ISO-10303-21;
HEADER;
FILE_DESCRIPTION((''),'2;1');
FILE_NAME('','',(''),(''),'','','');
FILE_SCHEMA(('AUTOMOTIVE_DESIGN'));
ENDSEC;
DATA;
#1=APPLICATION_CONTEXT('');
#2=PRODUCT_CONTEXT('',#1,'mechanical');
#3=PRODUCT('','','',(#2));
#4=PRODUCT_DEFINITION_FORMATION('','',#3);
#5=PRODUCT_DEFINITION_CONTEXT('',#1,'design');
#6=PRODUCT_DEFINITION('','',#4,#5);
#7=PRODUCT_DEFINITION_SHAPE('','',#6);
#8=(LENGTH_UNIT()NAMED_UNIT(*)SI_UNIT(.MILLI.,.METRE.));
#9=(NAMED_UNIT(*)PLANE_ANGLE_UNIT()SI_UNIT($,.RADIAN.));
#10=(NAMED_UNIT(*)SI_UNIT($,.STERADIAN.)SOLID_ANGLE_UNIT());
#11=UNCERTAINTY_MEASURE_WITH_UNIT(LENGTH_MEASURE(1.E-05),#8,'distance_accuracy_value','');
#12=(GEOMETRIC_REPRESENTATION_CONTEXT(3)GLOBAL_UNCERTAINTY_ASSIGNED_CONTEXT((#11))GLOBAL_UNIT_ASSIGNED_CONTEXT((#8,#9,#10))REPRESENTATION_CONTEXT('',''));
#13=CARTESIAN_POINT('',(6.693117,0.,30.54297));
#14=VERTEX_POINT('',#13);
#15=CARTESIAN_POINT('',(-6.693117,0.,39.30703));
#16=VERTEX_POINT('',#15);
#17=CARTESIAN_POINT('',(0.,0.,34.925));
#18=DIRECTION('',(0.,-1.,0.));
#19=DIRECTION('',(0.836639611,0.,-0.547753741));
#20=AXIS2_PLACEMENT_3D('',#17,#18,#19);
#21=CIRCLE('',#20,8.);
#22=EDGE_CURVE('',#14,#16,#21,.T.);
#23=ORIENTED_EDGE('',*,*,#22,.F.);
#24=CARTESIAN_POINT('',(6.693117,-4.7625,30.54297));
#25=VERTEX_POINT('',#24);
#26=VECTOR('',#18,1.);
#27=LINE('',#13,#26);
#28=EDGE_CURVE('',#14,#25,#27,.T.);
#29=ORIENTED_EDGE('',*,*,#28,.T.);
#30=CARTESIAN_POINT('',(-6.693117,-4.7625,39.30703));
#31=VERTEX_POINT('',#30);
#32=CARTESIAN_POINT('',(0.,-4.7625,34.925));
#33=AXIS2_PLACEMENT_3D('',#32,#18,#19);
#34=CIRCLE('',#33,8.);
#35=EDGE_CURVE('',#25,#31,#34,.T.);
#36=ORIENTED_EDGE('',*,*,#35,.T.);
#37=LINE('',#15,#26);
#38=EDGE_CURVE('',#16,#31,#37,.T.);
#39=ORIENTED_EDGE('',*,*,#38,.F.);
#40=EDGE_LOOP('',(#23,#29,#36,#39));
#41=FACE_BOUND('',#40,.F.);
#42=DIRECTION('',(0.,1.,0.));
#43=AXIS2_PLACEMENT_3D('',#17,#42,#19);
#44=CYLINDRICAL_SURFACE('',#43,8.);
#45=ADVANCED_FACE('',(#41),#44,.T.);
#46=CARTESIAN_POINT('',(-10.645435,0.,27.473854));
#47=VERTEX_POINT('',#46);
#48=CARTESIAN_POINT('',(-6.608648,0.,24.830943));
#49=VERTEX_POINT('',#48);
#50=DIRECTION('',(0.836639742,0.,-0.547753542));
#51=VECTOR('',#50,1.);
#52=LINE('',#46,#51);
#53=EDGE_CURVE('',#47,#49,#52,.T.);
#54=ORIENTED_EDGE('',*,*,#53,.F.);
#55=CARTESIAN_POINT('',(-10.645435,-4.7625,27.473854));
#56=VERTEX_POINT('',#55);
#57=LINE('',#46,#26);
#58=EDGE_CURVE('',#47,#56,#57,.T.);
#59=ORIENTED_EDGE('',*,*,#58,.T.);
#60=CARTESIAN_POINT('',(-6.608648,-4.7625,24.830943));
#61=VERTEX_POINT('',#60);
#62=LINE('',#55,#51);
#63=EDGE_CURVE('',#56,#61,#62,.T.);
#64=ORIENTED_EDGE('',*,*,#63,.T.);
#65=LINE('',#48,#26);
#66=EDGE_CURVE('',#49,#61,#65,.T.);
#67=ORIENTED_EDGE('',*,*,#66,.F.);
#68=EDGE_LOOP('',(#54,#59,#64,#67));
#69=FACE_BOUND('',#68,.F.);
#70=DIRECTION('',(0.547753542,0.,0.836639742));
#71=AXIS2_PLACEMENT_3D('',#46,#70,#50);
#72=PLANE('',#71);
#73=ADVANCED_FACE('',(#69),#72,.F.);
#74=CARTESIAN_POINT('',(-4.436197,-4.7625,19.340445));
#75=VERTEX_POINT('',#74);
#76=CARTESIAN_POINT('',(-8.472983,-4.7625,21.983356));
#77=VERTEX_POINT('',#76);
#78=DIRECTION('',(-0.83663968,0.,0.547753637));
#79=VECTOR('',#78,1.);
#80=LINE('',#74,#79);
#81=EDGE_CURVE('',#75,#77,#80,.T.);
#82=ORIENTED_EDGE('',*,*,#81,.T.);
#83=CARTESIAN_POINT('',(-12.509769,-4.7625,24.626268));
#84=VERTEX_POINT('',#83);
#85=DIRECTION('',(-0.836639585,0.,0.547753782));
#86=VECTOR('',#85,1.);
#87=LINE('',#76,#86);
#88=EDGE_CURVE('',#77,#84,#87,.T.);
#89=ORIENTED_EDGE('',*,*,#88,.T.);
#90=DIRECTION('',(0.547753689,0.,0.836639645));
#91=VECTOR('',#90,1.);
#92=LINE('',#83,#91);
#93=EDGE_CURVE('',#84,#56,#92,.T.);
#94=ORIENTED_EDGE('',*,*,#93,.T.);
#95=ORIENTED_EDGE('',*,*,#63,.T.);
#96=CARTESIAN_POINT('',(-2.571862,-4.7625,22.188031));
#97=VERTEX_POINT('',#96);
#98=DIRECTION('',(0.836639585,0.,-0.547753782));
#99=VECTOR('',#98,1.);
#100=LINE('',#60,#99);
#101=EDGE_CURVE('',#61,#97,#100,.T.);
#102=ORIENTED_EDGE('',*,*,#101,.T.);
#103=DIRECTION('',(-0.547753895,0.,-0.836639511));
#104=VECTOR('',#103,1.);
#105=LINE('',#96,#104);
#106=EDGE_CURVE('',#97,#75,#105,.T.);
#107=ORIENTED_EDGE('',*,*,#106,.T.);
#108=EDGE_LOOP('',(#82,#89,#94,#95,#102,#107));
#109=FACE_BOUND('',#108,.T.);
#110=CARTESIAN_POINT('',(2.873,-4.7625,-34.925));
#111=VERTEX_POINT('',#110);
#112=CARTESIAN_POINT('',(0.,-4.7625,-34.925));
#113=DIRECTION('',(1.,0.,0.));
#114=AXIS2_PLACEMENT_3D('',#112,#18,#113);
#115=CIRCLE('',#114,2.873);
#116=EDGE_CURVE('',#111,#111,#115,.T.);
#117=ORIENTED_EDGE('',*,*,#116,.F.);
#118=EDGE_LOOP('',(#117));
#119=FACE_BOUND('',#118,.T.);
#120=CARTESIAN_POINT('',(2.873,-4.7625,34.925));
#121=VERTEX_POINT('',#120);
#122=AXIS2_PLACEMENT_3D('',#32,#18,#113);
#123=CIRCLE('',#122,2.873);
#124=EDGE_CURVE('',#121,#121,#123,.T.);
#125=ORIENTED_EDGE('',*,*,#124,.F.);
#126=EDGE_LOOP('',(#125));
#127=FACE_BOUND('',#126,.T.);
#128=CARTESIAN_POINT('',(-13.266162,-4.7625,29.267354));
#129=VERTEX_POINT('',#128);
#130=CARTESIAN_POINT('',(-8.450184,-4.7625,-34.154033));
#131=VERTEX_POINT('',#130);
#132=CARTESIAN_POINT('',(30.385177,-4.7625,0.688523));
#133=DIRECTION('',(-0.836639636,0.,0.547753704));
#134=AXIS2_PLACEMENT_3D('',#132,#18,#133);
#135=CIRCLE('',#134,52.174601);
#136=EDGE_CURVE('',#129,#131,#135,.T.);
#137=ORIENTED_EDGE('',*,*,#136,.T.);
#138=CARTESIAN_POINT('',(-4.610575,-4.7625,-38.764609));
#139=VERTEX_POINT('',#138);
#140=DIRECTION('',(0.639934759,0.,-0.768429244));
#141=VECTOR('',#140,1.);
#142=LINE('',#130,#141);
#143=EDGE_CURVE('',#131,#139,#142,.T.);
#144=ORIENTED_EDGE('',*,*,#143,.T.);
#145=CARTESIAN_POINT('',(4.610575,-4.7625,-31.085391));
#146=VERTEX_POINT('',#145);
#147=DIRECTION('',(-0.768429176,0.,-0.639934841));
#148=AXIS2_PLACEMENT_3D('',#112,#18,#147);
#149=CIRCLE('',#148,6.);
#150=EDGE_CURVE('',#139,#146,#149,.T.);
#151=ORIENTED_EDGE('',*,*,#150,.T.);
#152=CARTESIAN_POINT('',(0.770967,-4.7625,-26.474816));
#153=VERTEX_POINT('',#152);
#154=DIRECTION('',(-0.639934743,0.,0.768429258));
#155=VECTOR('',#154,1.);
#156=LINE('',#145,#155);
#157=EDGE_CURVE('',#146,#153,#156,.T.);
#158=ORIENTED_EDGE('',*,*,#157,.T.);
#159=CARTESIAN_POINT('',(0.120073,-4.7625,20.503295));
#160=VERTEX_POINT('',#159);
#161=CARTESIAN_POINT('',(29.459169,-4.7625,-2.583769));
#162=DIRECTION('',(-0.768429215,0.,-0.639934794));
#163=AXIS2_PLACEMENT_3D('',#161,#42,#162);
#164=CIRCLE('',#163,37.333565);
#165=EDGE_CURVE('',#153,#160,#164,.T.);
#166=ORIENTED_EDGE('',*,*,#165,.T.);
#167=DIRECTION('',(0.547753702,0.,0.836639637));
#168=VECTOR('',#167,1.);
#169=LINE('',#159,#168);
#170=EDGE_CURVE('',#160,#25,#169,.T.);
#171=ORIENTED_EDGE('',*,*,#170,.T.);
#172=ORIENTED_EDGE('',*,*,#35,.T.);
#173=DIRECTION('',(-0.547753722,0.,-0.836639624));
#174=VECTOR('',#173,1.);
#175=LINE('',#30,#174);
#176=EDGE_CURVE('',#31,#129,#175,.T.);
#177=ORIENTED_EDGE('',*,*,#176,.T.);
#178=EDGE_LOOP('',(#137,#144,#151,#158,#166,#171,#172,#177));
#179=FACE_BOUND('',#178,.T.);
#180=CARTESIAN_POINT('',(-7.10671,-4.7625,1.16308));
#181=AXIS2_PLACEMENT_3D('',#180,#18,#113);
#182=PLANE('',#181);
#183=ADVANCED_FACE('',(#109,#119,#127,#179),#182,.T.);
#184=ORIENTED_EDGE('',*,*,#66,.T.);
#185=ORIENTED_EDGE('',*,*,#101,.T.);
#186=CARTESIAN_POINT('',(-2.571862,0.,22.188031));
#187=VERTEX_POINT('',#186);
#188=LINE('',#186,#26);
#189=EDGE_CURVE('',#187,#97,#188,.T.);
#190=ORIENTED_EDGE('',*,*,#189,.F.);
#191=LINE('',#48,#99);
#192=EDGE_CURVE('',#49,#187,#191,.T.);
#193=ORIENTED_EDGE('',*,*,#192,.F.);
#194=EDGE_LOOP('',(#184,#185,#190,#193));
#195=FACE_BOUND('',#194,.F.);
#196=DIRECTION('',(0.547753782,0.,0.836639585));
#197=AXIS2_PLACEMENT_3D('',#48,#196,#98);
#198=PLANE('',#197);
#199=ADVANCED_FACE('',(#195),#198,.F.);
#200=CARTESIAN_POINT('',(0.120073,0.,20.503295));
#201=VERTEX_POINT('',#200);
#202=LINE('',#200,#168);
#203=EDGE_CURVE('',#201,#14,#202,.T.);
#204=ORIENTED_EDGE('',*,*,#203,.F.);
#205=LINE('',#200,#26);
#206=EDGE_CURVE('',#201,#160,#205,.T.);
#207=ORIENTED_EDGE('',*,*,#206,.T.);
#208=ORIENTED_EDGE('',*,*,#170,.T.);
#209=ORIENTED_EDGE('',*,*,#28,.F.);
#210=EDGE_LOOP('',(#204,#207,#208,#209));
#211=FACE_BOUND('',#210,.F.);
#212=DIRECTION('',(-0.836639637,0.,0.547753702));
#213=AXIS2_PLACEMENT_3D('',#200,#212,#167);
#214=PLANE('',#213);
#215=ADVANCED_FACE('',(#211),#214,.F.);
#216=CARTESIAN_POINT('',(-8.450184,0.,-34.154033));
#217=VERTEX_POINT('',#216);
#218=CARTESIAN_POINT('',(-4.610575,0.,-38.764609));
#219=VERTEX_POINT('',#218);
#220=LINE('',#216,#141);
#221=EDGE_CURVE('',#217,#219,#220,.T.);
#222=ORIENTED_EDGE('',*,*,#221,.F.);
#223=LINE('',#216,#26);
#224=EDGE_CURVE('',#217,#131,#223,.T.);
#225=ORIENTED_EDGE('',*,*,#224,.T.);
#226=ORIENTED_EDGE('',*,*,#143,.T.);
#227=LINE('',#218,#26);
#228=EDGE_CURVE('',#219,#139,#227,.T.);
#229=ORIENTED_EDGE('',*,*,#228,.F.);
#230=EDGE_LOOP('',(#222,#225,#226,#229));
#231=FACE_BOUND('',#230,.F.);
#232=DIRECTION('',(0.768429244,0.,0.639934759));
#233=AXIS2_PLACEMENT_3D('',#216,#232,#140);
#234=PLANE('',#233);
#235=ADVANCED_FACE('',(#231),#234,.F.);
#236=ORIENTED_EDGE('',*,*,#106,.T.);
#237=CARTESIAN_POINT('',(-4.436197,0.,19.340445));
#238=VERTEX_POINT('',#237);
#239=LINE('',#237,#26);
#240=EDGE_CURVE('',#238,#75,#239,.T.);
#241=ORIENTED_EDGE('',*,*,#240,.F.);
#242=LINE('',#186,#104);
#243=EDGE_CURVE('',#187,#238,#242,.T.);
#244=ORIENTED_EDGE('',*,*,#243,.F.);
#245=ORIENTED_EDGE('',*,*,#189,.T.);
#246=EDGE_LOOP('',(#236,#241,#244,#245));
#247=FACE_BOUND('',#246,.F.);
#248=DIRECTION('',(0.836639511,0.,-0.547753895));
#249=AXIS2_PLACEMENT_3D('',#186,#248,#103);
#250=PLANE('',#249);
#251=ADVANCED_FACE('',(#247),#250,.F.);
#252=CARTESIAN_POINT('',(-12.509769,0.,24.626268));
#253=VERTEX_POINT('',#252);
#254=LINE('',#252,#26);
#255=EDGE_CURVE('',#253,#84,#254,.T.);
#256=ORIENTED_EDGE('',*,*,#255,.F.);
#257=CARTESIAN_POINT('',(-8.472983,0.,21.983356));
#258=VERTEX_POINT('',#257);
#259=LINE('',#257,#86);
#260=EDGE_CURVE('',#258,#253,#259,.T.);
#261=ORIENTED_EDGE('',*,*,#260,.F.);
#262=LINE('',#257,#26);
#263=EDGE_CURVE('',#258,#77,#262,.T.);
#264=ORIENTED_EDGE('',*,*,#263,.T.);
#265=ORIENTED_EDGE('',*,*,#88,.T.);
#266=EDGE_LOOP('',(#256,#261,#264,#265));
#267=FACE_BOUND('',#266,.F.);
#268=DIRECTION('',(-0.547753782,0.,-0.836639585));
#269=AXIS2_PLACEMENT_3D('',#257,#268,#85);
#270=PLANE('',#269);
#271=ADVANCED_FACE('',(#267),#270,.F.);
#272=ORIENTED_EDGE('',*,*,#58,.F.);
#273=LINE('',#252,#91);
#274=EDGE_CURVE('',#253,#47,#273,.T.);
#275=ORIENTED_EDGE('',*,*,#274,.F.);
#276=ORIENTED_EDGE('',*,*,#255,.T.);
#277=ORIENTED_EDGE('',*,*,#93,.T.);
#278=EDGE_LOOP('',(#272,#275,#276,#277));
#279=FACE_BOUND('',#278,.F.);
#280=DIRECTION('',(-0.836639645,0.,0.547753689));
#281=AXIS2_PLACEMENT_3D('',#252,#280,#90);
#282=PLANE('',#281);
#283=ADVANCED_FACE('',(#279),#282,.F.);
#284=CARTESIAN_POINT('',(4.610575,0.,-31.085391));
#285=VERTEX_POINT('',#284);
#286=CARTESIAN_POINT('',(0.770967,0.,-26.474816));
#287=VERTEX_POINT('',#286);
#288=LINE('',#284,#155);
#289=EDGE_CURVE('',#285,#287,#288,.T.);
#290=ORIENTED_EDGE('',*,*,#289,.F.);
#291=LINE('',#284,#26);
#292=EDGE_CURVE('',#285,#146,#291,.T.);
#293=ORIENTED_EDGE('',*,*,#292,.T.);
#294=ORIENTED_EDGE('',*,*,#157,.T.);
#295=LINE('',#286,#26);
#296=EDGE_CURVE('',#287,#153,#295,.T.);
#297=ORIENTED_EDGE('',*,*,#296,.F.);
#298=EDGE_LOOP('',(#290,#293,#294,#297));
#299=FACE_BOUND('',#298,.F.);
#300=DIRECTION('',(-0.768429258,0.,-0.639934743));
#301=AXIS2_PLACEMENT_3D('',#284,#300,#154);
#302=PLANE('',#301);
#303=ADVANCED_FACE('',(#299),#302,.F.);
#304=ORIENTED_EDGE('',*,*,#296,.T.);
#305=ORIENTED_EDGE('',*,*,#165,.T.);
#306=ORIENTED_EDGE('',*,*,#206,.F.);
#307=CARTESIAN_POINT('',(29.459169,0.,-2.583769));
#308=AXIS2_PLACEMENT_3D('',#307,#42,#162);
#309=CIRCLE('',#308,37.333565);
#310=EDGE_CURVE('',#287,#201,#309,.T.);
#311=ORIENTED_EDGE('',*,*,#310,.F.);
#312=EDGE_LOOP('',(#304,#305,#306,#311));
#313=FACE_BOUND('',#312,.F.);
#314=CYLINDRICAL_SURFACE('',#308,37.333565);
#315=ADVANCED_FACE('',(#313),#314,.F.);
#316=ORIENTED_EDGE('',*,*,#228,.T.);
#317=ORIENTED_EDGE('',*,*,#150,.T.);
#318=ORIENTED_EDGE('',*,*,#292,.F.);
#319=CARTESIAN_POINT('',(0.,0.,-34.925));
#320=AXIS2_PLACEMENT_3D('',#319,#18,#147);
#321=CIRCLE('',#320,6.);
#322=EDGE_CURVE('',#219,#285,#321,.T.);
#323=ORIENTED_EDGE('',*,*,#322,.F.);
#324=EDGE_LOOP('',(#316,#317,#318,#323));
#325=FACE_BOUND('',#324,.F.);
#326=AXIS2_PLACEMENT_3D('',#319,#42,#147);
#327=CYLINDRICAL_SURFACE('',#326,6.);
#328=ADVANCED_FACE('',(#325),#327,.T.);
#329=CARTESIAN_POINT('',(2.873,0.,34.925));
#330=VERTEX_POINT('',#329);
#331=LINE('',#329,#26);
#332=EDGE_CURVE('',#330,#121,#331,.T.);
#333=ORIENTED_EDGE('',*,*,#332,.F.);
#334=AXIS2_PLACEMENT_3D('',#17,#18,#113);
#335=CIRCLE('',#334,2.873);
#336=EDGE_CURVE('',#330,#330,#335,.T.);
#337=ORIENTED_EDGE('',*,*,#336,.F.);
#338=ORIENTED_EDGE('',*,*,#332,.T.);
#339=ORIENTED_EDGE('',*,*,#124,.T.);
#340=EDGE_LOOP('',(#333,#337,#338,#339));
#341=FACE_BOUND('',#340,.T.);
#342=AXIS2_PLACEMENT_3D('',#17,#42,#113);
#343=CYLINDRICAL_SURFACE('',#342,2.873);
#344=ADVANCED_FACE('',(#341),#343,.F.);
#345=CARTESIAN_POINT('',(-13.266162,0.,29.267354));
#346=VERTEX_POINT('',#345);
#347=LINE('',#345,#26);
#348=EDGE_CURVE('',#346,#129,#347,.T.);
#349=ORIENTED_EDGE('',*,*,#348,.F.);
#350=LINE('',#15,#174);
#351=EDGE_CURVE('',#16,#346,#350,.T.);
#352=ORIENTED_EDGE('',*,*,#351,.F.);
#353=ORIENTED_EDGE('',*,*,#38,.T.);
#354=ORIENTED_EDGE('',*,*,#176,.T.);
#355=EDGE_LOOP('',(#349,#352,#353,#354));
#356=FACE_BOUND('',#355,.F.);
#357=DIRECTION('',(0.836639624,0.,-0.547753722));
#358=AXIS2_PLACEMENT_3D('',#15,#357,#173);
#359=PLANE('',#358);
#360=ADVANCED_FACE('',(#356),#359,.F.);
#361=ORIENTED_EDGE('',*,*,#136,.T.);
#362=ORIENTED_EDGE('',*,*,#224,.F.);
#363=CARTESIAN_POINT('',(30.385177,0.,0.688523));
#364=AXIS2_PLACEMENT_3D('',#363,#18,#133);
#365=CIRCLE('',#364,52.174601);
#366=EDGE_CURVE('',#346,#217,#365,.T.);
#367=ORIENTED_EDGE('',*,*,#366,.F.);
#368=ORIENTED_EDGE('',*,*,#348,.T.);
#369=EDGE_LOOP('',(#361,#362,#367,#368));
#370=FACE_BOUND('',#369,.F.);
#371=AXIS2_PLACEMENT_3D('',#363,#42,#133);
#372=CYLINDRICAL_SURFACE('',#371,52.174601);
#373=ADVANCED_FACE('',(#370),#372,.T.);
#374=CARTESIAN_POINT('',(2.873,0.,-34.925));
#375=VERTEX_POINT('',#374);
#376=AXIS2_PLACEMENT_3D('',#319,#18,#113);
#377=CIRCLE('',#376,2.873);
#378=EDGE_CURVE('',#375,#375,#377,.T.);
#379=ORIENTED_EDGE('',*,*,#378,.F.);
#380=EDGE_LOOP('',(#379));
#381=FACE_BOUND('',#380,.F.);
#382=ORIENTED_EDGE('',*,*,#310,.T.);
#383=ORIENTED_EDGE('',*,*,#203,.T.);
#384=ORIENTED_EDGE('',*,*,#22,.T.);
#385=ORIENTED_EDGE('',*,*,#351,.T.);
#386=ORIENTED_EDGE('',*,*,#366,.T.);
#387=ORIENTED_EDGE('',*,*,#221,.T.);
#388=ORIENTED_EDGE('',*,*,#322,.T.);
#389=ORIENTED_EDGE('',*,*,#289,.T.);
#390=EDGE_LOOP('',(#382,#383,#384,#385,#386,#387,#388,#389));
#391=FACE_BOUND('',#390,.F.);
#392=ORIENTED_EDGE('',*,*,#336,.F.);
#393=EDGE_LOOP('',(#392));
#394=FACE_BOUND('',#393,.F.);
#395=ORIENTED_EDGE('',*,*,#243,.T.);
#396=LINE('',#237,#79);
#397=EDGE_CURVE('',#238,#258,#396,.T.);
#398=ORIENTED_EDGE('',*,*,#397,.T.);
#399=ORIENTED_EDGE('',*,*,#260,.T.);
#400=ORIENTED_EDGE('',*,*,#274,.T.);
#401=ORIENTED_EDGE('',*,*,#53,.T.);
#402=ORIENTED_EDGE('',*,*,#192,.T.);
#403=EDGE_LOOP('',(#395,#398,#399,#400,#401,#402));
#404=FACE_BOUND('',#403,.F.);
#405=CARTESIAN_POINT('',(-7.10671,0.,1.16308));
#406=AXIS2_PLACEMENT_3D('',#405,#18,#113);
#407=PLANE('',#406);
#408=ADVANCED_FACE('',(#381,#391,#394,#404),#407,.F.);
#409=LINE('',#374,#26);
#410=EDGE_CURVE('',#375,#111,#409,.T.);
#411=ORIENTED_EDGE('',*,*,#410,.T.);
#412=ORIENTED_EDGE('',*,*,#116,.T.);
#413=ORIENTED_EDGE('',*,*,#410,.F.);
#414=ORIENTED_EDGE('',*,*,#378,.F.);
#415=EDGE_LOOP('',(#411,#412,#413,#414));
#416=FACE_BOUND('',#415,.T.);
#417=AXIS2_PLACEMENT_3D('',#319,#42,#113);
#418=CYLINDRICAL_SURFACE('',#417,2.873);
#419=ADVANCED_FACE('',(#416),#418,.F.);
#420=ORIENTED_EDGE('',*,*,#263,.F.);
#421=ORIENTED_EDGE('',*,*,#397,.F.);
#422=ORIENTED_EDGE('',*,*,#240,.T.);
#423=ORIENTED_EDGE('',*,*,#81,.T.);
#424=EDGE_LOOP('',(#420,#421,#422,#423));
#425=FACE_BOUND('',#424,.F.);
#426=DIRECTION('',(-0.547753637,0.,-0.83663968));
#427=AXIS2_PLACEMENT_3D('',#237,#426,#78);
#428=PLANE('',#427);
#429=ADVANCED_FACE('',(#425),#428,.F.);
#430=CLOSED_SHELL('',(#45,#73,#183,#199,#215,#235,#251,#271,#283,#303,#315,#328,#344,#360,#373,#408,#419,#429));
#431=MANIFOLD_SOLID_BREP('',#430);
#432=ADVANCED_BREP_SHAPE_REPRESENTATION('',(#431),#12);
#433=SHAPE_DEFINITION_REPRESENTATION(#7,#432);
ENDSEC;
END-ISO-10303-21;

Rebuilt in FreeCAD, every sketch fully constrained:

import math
import FreeCAD as App
import Part
import Sketcher
from FreeCAD import Vector


def add_polygon(sketch, points):
    """Adds a closed chain of lines whose ends are joined by coincident constraints."""
    first, n = sketch.GeometryCount, len(points)
    for a, b in zip(points, points[1:] + points[:1]):
        sketch.addGeometry(Part.LineSegment(App.Vector(*a, 0), App.Vector(*b, 0)), False)
    for i in range(n):
        sketch.addConstraint(Sketcher.Constraint("Coincident", first + i, 2, first + (i + 1) % n, 1))

doc = App.newDocument("Part")
params = doc.addObject("Spreadsheet::Sheet", "Params")
for row, (alias, value) in enumerate([
    ("sketch1_radius", "6 mm"),
    ("sketch1_radius2", "8 mm"),
    ("sketch1_length", "6.000001 mm"),
    ("sketch1_length2", "11.999999 mm"),
    ("pad1_length", "4.7625 mm"),
], start=1):
    params.set(f"A{row}", alias)
    params.set(f"B{row}", "=" + value)
    params.setAlias(f"B{row}", alias)

body = doc.addObject("PartDesign::Body", "Body")

sketch1 = body.newObject("Sketcher::SketchObject", "Sketch")
sketch1.AttachmentSupport = (doc.getObject("XZ_Plane"), [""])
sketch1.MapMode = "FlatFace"
sketch1.addGeometry(Part.LineSegment(Vector(-8.5, -34.2, 0), Vector(-4.6, -38.8, 0)), False)
sketch1.addGeometry(Part.ArcOfCircle(Part.Circle(Vector(0, -34.9, 0), Vector(0, 0, 1), 6), math.radians(-140), math.radians(40)), False)
sketch1.addGeometry(Part.LineSegment(Vector(4.6, -31.1, 0), Vector(0.8, -26.5, 0)), False)
sketch1.addGeometry(Part.ArcOfCircle(Part.Circle(Vector(29.5, -2.6, 0), Vector(0, 0, 1), 37.3), math.radians(142), math.radians(220)), False)
sketch1.addGeometry(Part.LineSegment(Vector(0.1, 20.5, 0), Vector(6.7, 30.5, 0)), False)
sketch1.addGeometry(Part.ArcOfCircle(Part.Circle(Vector(0, 34.9, 0), Vector(0, 0, 1), 8), math.radians(-33), math.radians(147)), False)
sketch1.addGeometry(Part.LineSegment(Vector(-6.7, 39.3, 0), Vector(-13.3, 29.3, 0)), False)
sketch1.addGeometry(Part.ArcOfCircle(Part.Circle(Vector(30.4, 0.7, 0), Vector(0, 0, 1), 52.2), math.radians(147), math.radians(222)), False)
sketch1.addGeometry(Part.Circle(Vector(0, -34.9, 0), Vector(0, 0, 1), 2.9), False)
add_polygon(sketch1, [(-8.5, 22), (-12.5, 24.6), (-10.6, 27.5), (-6.6, 24.8), (-2.6, 22.2), (-4.4, 19.3)])
sketch1.addGeometry(Part.Circle(Vector(0, 34.9, 0), Vector(0, 0, 1), 2.9), False)
sketch1.addConstraint([
    Sketcher.Constraint("Tangent", 0, 2, 1, 1),
    Sketcher.Constraint("Tangent", 1, 2, 2, 1),
    Sketcher.Constraint("Tangent", 2, 2, 3, 2),
    Sketcher.Constraint("Coincident", 3, 1, 4, 1),
    Sketcher.Constraint("Tangent", 4, 2, 5, 1),
    Sketcher.Constraint("Tangent", 5, 2, 6, 1),
    Sketcher.Constraint("Tangent", 6, 2, 7, 1),
    Sketcher.Constraint("Coincident", 7, 2, 0, 1),
    Sketcher.Constraint("Coincident", 8, 3, 1, 3),
    Sketcher.Constraint("Coincident", 15, 3, 5, 3),
    Sketcher.Constraint("Equal", 8, 15),
    Sketcher.Constraint("Symmetric", 1, 3, 5, 3, -1, 1),
    Sketcher.Constraint("PointOnObject", 1, 3, -2),
    Sketcher.Constraint("Parallel", 0, 2),
    Sketcher.Constraint("Parallel", 4, 6),
    Sketcher.Constraint("Perpendicular", 6, 9),
    Sketcher.Constraint("Perpendicular", 9, 10),
    Sketcher.Constraint("Perpendicular", 10, 11),
    Sketcher.Constraint("Parallel", 11, 12),
    Sketcher.Constraint("Perpendicular", 12, 13),
    Sketcher.Constraint("Perpendicular", 13, 14),
    Sketcher.Constraint("Equal", 0, 2),
    Sketcher.Constraint("Equal", 4, 6),
    Sketcher.Constraint("Equal", 9, 11),
    Sketcher.Constraint("Equal", 11, 12),
    Sketcher.Constraint("Radius", 1, 6.0),
    Sketcher.Constraint("Radius", 5, 8.0),
    Sketcher.Constraint("Distance", 0, 6.000001),
    Sketcher.Constraint("Distance", 4, 11.999999),
    Sketcher.Constraint("Diameter", 8, 5.746),
    Sketcher.Constraint("Radius", 7, 52.174601),
    Sketcher.Constraint("DistanceY", 1, 3, 5, 3, 69.85),
    Sketcher.Constraint("Distance", 9, 4.825),
    Sketcher.Constraint("Radius", 3, 37.333565),
    Sketcher.Constraint("Distance", 10, 3.403599),
    Sketcher.Constraint("DistanceY", 10, 2, 6, 2, 1.7935),
    Sketcher.Constraint("DistanceX", 9, 2, -1, 1, 12.509769),
])
sketch1.setExpression("Constraints[31]", "Params.sketch1_radius")
sketch1.setExpression("Constraints[32]", "Params.sketch1_radius2")
sketch1.setExpression("Constraints[33]", "Params.sketch1_length")
sketch1.setExpression("Constraints[34]", "Params.sketch1_length2")
pad1 = body.newObject("PartDesign::Pad", "Pad")
pad1.Profile = sketch1
pad1.setExpression("Length", "Params.pad1_length")

doc.recompute()
